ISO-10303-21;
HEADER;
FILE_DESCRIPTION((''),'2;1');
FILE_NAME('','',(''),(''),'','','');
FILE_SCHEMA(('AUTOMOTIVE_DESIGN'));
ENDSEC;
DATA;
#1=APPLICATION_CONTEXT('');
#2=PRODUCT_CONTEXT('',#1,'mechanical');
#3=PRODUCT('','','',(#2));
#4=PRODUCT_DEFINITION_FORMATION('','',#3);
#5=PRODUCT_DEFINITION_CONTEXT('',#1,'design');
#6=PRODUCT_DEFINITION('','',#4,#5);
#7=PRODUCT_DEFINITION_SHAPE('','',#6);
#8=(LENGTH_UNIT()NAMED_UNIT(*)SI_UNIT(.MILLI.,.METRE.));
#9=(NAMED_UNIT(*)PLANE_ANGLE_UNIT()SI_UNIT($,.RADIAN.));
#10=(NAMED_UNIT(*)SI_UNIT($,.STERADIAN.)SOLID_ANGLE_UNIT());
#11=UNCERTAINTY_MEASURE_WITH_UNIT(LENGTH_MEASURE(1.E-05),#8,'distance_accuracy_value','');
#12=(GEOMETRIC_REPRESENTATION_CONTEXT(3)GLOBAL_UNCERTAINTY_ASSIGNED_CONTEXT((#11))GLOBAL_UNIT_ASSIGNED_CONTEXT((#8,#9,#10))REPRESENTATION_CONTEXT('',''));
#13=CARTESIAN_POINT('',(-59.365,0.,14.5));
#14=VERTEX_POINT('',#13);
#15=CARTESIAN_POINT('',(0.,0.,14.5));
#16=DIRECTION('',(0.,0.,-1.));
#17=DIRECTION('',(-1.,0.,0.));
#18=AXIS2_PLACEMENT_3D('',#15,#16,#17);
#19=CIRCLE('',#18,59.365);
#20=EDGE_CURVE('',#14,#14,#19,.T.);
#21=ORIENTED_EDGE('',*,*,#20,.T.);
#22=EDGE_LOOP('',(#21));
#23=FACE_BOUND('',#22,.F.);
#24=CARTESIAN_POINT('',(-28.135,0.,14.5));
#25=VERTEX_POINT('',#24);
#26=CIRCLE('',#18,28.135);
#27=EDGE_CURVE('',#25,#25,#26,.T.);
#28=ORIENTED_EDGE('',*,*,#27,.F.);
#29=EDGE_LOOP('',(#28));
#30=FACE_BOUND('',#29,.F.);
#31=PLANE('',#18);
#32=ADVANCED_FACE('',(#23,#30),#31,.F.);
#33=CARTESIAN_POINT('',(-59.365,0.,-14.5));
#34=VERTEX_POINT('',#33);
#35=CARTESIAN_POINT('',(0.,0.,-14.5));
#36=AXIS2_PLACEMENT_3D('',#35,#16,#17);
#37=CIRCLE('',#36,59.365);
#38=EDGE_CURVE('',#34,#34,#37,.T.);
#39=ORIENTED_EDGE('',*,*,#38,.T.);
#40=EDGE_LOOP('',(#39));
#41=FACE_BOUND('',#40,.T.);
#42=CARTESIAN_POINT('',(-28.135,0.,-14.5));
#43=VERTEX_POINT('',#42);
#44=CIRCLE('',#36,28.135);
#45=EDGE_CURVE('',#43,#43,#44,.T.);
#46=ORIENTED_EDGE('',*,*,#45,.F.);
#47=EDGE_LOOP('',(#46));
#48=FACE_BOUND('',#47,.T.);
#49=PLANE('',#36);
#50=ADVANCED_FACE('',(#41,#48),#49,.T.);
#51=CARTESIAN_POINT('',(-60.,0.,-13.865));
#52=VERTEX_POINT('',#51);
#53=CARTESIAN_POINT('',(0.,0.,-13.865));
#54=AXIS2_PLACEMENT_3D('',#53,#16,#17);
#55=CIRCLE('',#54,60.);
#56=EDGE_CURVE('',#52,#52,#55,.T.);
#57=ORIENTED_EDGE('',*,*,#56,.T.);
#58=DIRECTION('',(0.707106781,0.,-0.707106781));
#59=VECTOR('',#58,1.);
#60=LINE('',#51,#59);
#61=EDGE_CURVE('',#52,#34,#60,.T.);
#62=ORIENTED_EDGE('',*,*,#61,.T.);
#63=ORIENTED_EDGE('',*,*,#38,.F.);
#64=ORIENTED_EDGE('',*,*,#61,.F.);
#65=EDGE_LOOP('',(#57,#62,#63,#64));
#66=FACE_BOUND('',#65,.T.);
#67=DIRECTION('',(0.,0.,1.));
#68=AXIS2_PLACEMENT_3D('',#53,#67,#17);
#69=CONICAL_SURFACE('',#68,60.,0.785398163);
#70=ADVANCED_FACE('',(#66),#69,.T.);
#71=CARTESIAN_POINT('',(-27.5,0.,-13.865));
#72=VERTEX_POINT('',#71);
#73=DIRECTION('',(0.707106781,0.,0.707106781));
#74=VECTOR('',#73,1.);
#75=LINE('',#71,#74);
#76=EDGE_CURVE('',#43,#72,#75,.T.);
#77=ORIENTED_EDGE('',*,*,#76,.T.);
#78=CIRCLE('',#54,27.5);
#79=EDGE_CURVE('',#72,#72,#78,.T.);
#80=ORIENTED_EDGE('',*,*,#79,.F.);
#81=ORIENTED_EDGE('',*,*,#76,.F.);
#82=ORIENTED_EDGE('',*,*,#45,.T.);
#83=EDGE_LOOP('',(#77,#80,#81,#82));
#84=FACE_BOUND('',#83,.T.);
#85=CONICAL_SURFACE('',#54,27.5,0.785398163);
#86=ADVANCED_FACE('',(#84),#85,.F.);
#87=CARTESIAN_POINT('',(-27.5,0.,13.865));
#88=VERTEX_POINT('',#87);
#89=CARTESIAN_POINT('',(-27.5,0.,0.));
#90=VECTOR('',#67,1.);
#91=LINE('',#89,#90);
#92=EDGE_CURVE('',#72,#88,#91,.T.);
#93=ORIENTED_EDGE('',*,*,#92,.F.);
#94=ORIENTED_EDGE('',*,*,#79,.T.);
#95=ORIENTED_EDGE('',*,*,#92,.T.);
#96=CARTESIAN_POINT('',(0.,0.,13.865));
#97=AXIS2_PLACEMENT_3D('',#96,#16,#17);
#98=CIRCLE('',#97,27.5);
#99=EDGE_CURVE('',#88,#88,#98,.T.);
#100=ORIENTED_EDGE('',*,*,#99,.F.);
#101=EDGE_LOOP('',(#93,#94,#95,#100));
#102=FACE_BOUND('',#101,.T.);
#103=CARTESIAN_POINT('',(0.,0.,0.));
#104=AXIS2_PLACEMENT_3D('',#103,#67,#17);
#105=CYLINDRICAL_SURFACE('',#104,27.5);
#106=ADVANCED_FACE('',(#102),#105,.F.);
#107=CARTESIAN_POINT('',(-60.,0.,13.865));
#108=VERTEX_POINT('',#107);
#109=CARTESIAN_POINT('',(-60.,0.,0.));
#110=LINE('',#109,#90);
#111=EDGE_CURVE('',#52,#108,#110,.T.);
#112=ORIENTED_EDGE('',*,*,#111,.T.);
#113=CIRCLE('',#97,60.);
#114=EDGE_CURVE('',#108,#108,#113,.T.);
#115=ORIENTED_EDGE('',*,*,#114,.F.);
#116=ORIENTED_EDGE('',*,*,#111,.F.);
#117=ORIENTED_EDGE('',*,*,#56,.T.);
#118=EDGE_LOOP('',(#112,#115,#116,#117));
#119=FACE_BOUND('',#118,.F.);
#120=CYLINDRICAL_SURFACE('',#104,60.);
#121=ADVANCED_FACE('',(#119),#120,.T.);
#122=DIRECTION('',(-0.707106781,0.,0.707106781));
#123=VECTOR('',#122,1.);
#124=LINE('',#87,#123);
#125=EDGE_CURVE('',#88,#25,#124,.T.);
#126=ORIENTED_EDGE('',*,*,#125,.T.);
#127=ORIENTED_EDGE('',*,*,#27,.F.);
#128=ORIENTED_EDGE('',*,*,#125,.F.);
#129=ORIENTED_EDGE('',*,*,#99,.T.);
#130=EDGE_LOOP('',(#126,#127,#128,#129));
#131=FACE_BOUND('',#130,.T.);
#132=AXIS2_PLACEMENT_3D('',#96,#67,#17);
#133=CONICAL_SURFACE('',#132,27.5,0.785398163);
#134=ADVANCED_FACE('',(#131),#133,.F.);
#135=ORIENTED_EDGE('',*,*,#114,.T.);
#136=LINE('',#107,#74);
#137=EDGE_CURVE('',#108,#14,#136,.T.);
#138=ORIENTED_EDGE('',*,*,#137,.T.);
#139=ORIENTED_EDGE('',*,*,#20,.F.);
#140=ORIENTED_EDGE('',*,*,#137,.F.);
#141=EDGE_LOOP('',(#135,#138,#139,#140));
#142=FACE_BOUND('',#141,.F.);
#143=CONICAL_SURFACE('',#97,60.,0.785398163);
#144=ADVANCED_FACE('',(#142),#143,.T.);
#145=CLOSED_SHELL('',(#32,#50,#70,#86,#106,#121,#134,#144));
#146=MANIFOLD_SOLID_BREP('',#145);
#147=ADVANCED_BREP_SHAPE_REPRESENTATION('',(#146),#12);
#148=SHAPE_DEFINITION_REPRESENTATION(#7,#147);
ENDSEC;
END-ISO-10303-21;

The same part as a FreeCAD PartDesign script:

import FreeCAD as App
import Part
import Sketcher

V = App.Vector


def edges_at(feature, points):
    """Names of the edges that pass closest to the given points."""
    edges = feature.Shape.Edges
    near = lambda p: min(range(len(edges)), key=lambda i: edges[i].distToShape(Part.Vertex(*p))[0])
    return sorted({f"Edge{near(p) + 1}" for p in points})

doc = App.newDocument("Part")
params = doc.addObject("Spreadsheet::Sheet", "Params")
for row, (alias, value) in enumerate([
    ("sketch1_height", "29 mm"),
    ("sketch1_width", "32.5 mm"),
    ("revolution_angle", "360 deg"),
    ("chamfer_size", "0.635 mm"),
], start=1):
    params.set(f"A{row}", alias)
    params.set(f"B{row}", "=" + value)
    params.setAlias(f"B{row}", alias)

body = doc.addObject("PartDesign::Body", "Body")

# Sketch on XZ plane
sketch1 = doc.addObject("Sketcher::SketchObject", "Sketch")
body.addObject(sketch1)
sketch1.AttachmentSupport = (doc.XZ_Plane, [""])
sketch1.MapMode = "FlatFace"
sketch1.addGeometry([
    Part.LineSegment(V(-60, 14, 0), V(-60, -14, 0)),
    Part.LineSegment(V(-60, -14, 0), V(-28, -14, 0)),
    Part.LineSegment(V(-28, -14, 0), V(-28, 14, 0)),
    Part.LineSegment(V(-28, 14, 0), V(-60, 14, 0)),
], False)
sketch1.addConstraint([
    Sketcher.Constraint("Coincident", 0, 2, 1, 1),
    Sketcher.Constraint("Coincident", 1, 2, 2, 1),
    Sketcher.Constraint("Coincident", 2, 2, 3, 1),
    Sketcher.Constraint("Coincident", 3, 2, 0, 1),
    Sketcher.Constraint("Vertical", 0),
    Sketcher.Constraint("Horizontal", 1),
    Sketcher.Constraint("Vertical", 2),
    Sketcher.Constraint("Horizontal", 3),
    Sketcher.Constraint("DistanceY", 0, 2, 0, 1, 29.0),
    Sketcher.Constraint("DistanceX", 1, 1, 1, 2, 32.5),
    Sketcher.Constraint("DistanceX", 0, 2, -1, 1, 60.0),
    Sketcher.Constraint("DistanceY", 0, 2, -1, 1, 14.5),
])
sketch1.setExpression("Constraints[8]", "Params.sketch1_height")
sketch1.setExpression("Constraints[9]", "Params.sketch1_width")
revolution = doc.addObject("PartDesign::Revolution", "Revolution")
body.addObject(revolution)
revolution.Profile = sketch1
revolution.ReferenceAxis = (sketch1, ["V_Axis"])
revolution.setExpression("Angle", "Params.revolution_angle")
doc.recompute()

chamfer = doc.addObject("PartDesign::Chamfer", "Chamfer")
body.addObject(chamfer)
chamfer.Base = (revolution, edges_at(revolution, [
    (27.5, 0, 14.5),
    (60, 0, 14.5),
    (27.5, 0, -14.5),
    (60, 0, -14.5),
]))
chamfer.setExpression("Size", "Params.chamfer_size")

doc.recompute()
